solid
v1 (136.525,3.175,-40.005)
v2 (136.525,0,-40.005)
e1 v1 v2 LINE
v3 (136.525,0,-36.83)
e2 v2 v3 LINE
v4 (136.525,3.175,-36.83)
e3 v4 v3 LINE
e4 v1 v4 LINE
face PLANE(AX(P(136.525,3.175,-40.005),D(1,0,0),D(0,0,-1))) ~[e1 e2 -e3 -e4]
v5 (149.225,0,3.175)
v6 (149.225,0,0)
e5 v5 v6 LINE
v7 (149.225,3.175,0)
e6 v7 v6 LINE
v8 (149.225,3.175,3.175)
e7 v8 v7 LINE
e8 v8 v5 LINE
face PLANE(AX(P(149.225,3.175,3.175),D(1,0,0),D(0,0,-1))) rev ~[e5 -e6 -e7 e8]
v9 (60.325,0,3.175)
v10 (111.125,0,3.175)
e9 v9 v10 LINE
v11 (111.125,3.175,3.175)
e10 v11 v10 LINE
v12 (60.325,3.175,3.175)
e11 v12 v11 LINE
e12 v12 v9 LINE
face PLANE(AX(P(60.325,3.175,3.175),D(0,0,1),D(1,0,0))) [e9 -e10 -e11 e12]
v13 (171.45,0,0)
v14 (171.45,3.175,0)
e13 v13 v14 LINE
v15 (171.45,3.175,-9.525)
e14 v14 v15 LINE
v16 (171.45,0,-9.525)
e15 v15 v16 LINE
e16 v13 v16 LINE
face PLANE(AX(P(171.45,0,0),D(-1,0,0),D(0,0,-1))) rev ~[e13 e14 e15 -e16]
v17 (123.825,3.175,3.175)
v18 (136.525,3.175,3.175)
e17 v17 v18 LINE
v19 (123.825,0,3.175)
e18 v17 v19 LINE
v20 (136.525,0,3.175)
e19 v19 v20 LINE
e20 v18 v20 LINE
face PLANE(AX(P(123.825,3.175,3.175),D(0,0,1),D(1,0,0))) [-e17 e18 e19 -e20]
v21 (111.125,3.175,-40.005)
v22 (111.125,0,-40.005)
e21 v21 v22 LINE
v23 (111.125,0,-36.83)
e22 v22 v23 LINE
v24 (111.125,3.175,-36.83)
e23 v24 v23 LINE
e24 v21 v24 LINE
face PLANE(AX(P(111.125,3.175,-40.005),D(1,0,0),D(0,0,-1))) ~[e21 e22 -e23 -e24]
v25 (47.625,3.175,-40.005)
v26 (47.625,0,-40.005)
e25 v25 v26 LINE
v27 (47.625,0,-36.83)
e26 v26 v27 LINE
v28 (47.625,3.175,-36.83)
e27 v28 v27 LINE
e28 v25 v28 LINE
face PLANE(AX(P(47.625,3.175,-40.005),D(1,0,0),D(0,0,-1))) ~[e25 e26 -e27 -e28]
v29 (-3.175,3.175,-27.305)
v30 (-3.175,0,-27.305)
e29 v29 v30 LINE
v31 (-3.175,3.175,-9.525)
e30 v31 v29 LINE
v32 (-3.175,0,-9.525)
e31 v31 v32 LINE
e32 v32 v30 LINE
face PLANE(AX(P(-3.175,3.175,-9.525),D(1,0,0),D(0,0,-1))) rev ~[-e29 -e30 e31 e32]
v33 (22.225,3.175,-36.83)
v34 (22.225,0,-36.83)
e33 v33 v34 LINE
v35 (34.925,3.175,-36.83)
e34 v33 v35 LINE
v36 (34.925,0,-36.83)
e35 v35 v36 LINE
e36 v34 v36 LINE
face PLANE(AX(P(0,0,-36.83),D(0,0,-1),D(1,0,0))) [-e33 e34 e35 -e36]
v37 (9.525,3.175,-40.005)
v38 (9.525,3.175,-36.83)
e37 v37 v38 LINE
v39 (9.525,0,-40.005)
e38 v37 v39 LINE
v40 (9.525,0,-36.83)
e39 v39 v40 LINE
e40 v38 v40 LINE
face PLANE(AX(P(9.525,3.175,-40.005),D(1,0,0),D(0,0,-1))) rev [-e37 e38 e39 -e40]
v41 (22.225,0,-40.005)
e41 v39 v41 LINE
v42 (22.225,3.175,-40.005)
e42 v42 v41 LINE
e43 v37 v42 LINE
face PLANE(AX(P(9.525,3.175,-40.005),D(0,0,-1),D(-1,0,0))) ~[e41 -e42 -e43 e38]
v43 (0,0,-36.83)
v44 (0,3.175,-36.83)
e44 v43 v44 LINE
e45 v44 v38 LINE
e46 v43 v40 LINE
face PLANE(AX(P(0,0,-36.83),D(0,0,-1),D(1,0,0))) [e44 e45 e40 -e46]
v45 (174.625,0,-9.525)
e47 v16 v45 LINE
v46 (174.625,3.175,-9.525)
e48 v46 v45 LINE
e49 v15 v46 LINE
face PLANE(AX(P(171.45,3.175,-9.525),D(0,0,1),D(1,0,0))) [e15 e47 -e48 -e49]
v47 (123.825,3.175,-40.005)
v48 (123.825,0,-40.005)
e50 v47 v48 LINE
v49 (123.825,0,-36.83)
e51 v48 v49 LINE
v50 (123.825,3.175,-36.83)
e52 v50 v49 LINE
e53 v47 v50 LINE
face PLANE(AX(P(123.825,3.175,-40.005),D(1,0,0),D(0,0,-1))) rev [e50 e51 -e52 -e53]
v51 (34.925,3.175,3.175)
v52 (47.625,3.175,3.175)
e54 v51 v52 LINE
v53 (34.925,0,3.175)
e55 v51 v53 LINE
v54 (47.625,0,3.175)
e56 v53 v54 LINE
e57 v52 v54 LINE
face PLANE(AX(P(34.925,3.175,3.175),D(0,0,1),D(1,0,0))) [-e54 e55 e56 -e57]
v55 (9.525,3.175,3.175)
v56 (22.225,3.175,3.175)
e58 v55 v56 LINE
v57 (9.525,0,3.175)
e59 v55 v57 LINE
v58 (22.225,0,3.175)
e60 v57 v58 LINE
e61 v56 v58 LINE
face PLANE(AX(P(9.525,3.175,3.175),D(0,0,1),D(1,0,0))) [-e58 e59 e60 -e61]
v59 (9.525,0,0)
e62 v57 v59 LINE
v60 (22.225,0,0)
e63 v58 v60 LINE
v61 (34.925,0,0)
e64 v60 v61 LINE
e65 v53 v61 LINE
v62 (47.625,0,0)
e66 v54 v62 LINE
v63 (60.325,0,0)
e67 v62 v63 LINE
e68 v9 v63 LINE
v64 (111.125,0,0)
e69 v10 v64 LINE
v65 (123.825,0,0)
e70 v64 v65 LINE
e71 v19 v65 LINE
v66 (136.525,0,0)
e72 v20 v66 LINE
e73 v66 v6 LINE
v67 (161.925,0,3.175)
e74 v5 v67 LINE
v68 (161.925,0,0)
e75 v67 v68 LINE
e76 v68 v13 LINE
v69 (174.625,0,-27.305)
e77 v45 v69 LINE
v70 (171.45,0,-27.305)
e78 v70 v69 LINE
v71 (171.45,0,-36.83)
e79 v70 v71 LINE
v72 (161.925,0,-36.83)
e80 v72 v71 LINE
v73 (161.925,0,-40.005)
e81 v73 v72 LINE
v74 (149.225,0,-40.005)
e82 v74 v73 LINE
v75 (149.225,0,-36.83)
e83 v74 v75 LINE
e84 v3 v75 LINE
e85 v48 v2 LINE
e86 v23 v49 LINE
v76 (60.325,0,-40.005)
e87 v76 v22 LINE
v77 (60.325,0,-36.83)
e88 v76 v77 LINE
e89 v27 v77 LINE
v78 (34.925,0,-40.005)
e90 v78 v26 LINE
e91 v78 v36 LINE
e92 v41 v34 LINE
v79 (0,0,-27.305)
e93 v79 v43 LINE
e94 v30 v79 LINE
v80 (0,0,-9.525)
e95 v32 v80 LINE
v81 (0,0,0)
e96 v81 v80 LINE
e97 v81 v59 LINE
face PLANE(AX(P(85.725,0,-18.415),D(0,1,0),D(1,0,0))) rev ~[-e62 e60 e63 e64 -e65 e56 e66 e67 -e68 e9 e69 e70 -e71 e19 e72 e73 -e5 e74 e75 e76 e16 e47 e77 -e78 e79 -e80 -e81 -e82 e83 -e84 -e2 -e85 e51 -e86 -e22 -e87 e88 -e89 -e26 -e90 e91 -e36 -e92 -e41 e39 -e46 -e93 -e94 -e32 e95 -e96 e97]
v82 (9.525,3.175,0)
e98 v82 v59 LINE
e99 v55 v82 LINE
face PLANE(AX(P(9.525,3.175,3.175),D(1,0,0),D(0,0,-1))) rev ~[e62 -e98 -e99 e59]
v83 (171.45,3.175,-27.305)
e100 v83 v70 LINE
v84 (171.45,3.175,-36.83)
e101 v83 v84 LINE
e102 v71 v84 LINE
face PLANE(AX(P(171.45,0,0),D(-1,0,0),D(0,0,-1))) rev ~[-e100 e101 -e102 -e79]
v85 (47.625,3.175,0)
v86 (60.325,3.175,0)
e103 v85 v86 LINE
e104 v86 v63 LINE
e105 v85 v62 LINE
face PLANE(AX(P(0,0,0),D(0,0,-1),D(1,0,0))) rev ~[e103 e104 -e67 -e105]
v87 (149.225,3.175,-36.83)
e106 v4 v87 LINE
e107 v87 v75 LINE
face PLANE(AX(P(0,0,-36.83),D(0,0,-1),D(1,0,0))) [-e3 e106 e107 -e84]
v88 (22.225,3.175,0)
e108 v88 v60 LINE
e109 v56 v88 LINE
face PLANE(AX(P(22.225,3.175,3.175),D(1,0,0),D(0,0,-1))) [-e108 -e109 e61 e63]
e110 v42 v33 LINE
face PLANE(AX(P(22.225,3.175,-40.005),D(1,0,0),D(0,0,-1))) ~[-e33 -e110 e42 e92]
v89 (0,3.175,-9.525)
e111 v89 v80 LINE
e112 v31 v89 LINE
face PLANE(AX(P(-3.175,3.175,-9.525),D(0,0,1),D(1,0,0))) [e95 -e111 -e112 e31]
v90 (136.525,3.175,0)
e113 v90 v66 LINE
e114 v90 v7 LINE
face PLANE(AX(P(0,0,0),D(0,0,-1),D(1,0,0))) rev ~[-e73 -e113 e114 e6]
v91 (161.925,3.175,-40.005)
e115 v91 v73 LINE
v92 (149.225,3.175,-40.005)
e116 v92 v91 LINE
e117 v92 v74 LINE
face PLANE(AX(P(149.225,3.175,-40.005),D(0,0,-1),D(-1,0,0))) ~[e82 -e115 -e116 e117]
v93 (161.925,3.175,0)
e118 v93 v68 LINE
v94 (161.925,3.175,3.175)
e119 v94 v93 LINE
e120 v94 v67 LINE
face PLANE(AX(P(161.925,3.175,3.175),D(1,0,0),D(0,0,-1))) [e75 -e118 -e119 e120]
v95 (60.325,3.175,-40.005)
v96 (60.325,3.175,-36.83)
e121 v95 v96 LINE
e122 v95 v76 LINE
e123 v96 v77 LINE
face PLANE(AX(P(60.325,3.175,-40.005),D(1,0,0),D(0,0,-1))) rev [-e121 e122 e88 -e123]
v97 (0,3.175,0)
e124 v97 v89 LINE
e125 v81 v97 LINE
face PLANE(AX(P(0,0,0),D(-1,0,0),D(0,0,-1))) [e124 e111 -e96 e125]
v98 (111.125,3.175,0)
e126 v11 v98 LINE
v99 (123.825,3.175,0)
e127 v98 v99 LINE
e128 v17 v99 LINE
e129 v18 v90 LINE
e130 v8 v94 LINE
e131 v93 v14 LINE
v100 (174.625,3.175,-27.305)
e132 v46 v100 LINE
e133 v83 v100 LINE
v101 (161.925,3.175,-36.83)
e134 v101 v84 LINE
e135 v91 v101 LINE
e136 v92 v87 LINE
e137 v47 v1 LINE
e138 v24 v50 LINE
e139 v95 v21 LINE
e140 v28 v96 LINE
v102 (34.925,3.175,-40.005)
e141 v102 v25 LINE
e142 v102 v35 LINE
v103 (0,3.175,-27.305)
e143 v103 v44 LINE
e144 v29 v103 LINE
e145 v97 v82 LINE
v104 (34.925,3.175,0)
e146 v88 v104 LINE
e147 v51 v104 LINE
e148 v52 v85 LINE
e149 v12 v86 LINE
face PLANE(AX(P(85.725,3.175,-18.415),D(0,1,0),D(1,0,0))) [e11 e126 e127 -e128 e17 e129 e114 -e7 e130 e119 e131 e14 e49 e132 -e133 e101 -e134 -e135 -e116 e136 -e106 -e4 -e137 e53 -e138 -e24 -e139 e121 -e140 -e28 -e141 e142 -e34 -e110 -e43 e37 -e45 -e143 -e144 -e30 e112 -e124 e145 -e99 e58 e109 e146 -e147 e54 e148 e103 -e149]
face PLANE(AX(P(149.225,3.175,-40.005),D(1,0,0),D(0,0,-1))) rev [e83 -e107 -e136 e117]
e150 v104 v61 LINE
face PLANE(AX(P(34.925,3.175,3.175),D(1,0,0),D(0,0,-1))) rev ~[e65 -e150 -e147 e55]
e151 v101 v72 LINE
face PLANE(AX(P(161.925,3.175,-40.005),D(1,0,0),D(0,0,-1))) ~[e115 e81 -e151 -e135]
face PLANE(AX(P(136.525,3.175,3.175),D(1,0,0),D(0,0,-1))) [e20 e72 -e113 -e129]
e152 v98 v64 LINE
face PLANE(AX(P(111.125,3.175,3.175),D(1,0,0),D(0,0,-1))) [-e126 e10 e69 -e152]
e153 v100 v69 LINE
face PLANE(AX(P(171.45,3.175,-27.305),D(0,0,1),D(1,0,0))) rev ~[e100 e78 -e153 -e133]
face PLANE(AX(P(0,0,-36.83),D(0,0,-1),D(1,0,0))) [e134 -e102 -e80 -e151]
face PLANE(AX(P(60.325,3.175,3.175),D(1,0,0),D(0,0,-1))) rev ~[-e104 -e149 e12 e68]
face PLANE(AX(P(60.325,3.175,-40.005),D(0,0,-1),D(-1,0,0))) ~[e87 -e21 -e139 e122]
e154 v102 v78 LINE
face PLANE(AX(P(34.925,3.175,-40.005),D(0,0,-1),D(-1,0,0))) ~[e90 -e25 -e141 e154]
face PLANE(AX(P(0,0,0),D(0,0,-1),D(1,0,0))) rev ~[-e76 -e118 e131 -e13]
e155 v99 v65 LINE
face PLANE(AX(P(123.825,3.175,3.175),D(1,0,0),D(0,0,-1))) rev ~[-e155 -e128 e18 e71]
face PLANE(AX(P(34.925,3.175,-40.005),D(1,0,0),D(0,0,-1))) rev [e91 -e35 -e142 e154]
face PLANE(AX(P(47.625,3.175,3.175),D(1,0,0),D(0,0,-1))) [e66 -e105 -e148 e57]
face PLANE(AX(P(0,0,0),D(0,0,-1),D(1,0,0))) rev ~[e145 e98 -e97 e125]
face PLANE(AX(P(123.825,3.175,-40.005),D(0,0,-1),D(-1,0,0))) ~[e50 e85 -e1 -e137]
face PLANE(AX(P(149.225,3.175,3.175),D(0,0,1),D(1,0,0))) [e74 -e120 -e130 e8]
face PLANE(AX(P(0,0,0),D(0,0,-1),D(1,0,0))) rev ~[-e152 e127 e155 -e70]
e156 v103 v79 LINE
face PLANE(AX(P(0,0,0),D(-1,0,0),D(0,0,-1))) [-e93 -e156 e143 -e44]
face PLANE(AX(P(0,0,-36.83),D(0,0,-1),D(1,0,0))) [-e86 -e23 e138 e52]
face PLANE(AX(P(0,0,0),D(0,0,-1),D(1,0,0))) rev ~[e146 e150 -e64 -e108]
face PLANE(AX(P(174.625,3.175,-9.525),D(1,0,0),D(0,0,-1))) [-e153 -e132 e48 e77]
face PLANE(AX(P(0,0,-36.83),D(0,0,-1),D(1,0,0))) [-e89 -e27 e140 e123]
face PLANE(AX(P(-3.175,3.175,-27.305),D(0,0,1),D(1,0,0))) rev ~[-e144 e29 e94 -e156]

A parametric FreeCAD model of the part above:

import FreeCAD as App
import Part
import Sketcher

V = App.Vector
Q = App.Units.Quantity


def add_polygon(sketch, points):
    """Adds a closed chain of lines whose ends are joined by coincident constraints."""
    first, n = sketch.GeometryCount, len(points)
    for a, b in zip(points, points[1:] + points[:1]):
        sketch.addGeometry(Part.LineSegment(App.Vector(*a, 0), App.Vector(*b, 0)), False)
    for i in range(n):
        sketch.addConstraint(Sketcher.Constraint("Coincident", first + i, 2, first + (i + 1) % n, 1))

doc = App.newDocument("Part")
body = doc.addObject("PartDesign::Body", "Body")

# Sketch on XZ plane
sketch1 = doc.addObject("Sketcher::SketchObject", "Sketch")
body.addObject(sketch1)
sketch1.AttachmentSupport = (doc.XZ_Plane, [""])
sketch1.MapMode = "FlatFace"
add_polygon(sketch1, [(0, -37), (0, 0), (171, 0), (171, -37)])  # lines 0-3
sketch1.addConstraint([
    Sketcher.Constraint("Vertical", 0),
    Sketcher.Constraint("Horizontal", 1),
    Sketcher.Constraint("Vertical", 2),
    Sketcher.Constraint("Horizontal", 3),
    Sketcher.Constraint("Coincident", 0, 2, -1, 1),
    Sketcher.Constraint("DistanceX", 1, 1, 1, 2, Q("6.75 in")),
    Sketcher.Constraint("DistanceY", 0, 1, 0, 2, Q("1.45 in")),
])
pad1 = doc.addObject("PartDesign::Pad", "Pad")
body.addObject(pad1)
pad1.Profile = sketch1
pad1.Length = Q("0.125 in")
pad1.Reversed = True

# Sketch on XZ plane
sketch2 = doc.addObject("Sketcher::SketchObject", "Sketch001")
body.addObject(sketch2)
sketch2.AttachmentSupport = (doc.XZ_Plane, [""])
sketch2.MapMode = "FlatFace"
sketch2.AttachmentOffset = App.Placement(V(0, 0, -0.125 * 25.4), App.Rotation())
add_polygon(sketch2, [(9.5, 0), (9.5, 3.2), (22.2, 3.2), (22.2, 0)])  # lines 0-3
add_polygon(sketch2, [(34.9, 0), (34.9, 3.2), (47.6, 3.2), (47.6, 0)])  # lines 4-7
add_polygon(sketch2, [(60.3, 0), (60.3, 3.2), (111.1, 3.2), (111.1, 0)])  # lines 8-11
add_polygon(sketch2, [(123.8, 0), (123.8, 3.2), (136.5, 3.2), (136.5, 0)])  # lines 12-15
add_polygon(sketch2, [(149.2, 0), (149.2, 3.2), (161.9, 3.2), (161.9, 0)])  # lines 16-19
sketch2.addConstraint([
    Sketcher.Constraint("Vertical", 0),
    Sketcher.Constraint("Horizontal", 1),
    Sketcher.Constraint("Vertical", 2),
    Sketcher.Constraint("Horizontal", 3),
    Sketcher.Constraint("Vertical", 4),
    Sketcher.Constraint("Horizontal", 5),
    Sketcher.Constraint("Vertical", 6),
    Sketcher.Constraint("Horizontal", 7),
    Sketcher.Constraint("Vertical", 8),
    Sketcher.Constraint("Horizontal", 9),
    Sketcher.Constraint("Vertical", 10),
    Sketcher.Constraint("Horizontal", 11),
    Sketcher.Constraint("Vertical", 12),
    Sketcher.Constraint("Horizontal", 13),
    Sketcher.Constraint("Vertical", 14),
    Sketcher.Constraint("Horizontal", 15),
    Sketcher.Constraint("Vertical", 16),
    Sketcher.Constraint("Horizontal", 17),
    Sketcher.Constraint("Vertical", 18),
    Sketcher.Constraint("Horizontal", 19),
    Sketcher.Constraint("PointOnObject", 2, 2, -1),
    Sketcher.Constraint("PointOnObject", 6, 2, -1),
    Sketcher.Constraint("PointOnObject", 10, 2, -1),
    Sketcher.Constraint("PointOnObject", 14, 2, -1),
    Sketcher.Constraint("PointOnObject", 18, 2, -1),
    Sketcher.Constraint("Horizontal", 1, 2, 4, 2),
    Sketcher.Constraint("Horizontal", 5, 2, 8, 2),
    Sketcher.Constraint("Horizontal", 9, 2, 12, 2),
    Sketcher.Constraint("Horizontal", 13, 2, 16, 2),
    Sketcher.Constraint("Equal", 3, 5),
    Sketcher.Constraint("Equal", 7, 13),
    Sketcher.Constraint("Equal", 15, 17),
    Sketcher.Constraint("DistanceX", 9, 1, 9, 2, Q("2 in")),
    Sketcher.Constraint("DistanceX", 1, 1, 1, 2, Q("0.5 in")),
    Sketcher.Constraint("DistanceX", 0, 2, 4, 2, Q("1 in")),
    Sketcher.Constraint("DistanceX", 4, 2, 8, 2, Q("1 in")),
    Sketcher.Constraint("DistanceX", 5, 2, 12, 2, Q("3 in")),
    Sketcher.Constraint("DistanceX", 12, 2, 16, 2, Q("1 in")),
    Sketcher.Constraint("DistanceY", 0, 1, 0, 2, Q("0.125 in")),
    Sketcher.Constraint("DistanceX", -1, 1, 0, 2, Q("0.375 in")),
])
pad2 = doc.addObject("PartDesign::Pad", "Pad001")
body.addObject(pad2)
pad2.Profile = sketch2
pad2.Length = Q("0.125 in")

# Sketch on XZ plane
sketch3 = doc.addObject("Sketcher::SketchObject", "Sketch002")
body.addObject(sketch3)
sketch3.AttachmentSupport = (doc.XZ_Plane, [""])
sketch3.MapMode = "FlatFace"
sketch3.AttachmentOffset = App.Placement(V(0, 0, -0.125 * 25.4), App.Rotation())
add_polygon(sketch3, [(67, -16), (67, -3), (110, -3), (110, -16)])  # lines 0-3
sketch3.addConstraint([
    Sketcher.Constraint("Vertical", 0),
    Sketcher.Constraint("Horizontal", 1),
    Sketcher.Constraint("Vertical", 2),
    Sketcher.Constraint("Horizontal", 3),
    Sketcher.Constraint("DistanceY", 0, 1, 0, 2, Q("0.5 in")),
    Sketcher.Constraint("DistanceX", 1, 1, 1, 2, Q("1.67 in")),
    Sketcher.Constraint("DistanceX", -1, 1, 0, 2, Q("2.655 in")),
    Sketcher.Constraint("DistanceY", 0, 2, -1, 1, Q("0.125 in")),
])
pocket1 = doc.addObject("PartDesign::Pocket", "Pocket")
body.addObject(pocket1)
pocket1.Profile = sketch3
pocket1.Length = Q("0.125 in")
pocket1.Reversed = True

# Sketch on XZ plane
sketch4 = doc.addObject("Sketcher::SketchObject", "Sketch003")
body.addObject(sketch4)
sketch4.AttachmentSupport = (doc.XZ_Plane, [""])
sketch4.MapMode = "FlatFace"
sketch4.AttachmentOffset = App.Placement(V(0, 0, -0.125 * 25.4), App.Rotation())
add_polygon(sketch4, [(81, -16), (81, -3), (98, -3), (98, -16)])  # lines 0-3
sketch4.addConstraint([
    Sketcher.Constraint("Vertical", 0),
    Sketcher.Constraint("Horizontal", 1),
    Sketcher.Constraint("Vertical", 2),
    Sketcher.Constraint("Horizontal", 3),
    Sketcher.Constraint("DistanceY", 0, 1, 0, 2, Q("0.5 in")),
    Sketcher.Constraint("DistanceX", 1, 1, 1, 2, Q("0.67 in")),
    Sketcher.Constraint("DistanceX", -1, 1, 0, 2, Q("3.205 in")),
    Sketcher.Constraint("DistanceY", 0, 2, -1, 1, Q("0.125 in")),
])
pad3 = doc.addObject("PartDesign::Pad", "Pad002")
body.addObject(pad3)
pad3.Profile = sketch4
pad3.Length = Q("0.125 in")

# Sketch on XZ plane
sketch5 = doc.addObject("Sketcher::SketchObject", "Sketch004")
body.addObject(sketch5)
sketch5.AttachmentSupport = (doc.XZ_Plane, [""])
sketch5.MapMode = "FlatFace"
sketch5.AttachmentOffset = App.Placement(V(0, 0, -0.125 * 25.4), App.Rotation())
add_polygon(sketch5, [(-3.2, -27.3), (-3.2, -9.5), (0, -9.5), (0, -27.3)])  # lines 0-3
add_polygon(sketch5, [(171.4, -27.3), (171.4, -9.5), (174.6, -9.5), (174.6, -27.3)])  # lines 4-7
sketch5.addConstraint([
    Sketcher.Constraint("Vertical", 0),
    Sketcher.Constraint("Horizontal", 1),
    Sketcher.Constraint("Vertical", 2),
    Sketcher.Constraint("Horizontal", 3),
    Sketcher.Constraint("Vertical", 4),
    Sketcher.Constraint("Horizontal", 5),
    Sketcher.Constraint("Vertical", 6),
    Sketcher.Constraint("Horizontal", 7),
    Sketcher.Constraint("PointOnObject", 1, 2, -2),
    Sketcher.Constraint("Horizontal", 1, 2, 4, 2),
    Sketcher.Constraint("Horizontal", 3, 2, 6, 2),
    Sketcher.Constraint("Equal", 3, 5),
    Sketcher.Constraint("DistanceY", 0, 1, 0, 2, Q("0.7 in")),
    Sketcher.Constraint("DistanceX", 0, 2, 5, 2, Q("7 in")),
    Sketcher.Constraint("DistanceX", 1, 1, 1, 2, Q("0.125 in")),
    Sketcher.Constraint("DistanceY", 0, 2, -1, 1, Q("0.375 in")),
])
pad4 = doc.addObject("PartDesign::Pad", "Pad003")
body.addObject(pad4)
pad4.Profile = sketch5
pad4.Length = Q("0.125 in")
doc.recompute()

datumplane = doc.addObject("PartDesign::Plane", "DatumPlane")
body.addObject(datumplane)
datumplane.AttachmentSupport = (doc.XY_Plane, [""])
datumplane.MapMode = "FlatFace"
datumplane.AttachmentOffset = App.Placement(V(0, 0, -0.725 * 25.4), App.Rotation())
mirrored = doc.addObject("PartDesign::Mirrored", "Mirrored")
body.addObject(mirrored)
mirrored.Originals = [pad2]
mirrored.MirrorPlane = (datumplane, [""])
body.Tip = mirrored

# Sketch on XZ plane
sketch6 = doc.addObject("Sketcher::SketchObject", "Sketch005")
body.addObject(sketch6)
sketch6.AttachmentSupport = (doc.XZ_Plane, [""])
sketch6.MapMode = "FlatFace"
sketch6.AttachmentOffset = App.Placement(V(0, 0, -0.125 * 25.4), App.Rotation())
add_polygon(sketch6, [(56, -27), (56, -1), (115, -1), (115, -27)])  # lines 0-3
sketch6.addConstraint([
    Sketcher.Constraint("Vertical", 0),
    Sketcher.Constraint("Horizontal", 1),
    Sketcher.Constraint("Vertical", 2),
    Sketcher.Constraint("Horizontal", 3),
    Sketcher.Constraint("DistanceY", 0, 1, 0, 2, Q("25.17303 mm")),
    Sketcher.Constraint("DistanceX", 1, 1, 1, 2, Q("59.348335 mm")),
    Sketcher.Constraint("DistanceX", -1, 1, 0, 2, Q("56.134187 mm")),
    Sketcher.Constraint("DistanceY", 0, 2, -1, 1, Q("1.327347 mm")),
])
pad5 = doc.addObject("PartDesign::Pad", "Pad004")
body.addObject(pad5)
pad5.Profile = sketch6
pad5.Length = Q("0.125 in")

doc.recompute()
